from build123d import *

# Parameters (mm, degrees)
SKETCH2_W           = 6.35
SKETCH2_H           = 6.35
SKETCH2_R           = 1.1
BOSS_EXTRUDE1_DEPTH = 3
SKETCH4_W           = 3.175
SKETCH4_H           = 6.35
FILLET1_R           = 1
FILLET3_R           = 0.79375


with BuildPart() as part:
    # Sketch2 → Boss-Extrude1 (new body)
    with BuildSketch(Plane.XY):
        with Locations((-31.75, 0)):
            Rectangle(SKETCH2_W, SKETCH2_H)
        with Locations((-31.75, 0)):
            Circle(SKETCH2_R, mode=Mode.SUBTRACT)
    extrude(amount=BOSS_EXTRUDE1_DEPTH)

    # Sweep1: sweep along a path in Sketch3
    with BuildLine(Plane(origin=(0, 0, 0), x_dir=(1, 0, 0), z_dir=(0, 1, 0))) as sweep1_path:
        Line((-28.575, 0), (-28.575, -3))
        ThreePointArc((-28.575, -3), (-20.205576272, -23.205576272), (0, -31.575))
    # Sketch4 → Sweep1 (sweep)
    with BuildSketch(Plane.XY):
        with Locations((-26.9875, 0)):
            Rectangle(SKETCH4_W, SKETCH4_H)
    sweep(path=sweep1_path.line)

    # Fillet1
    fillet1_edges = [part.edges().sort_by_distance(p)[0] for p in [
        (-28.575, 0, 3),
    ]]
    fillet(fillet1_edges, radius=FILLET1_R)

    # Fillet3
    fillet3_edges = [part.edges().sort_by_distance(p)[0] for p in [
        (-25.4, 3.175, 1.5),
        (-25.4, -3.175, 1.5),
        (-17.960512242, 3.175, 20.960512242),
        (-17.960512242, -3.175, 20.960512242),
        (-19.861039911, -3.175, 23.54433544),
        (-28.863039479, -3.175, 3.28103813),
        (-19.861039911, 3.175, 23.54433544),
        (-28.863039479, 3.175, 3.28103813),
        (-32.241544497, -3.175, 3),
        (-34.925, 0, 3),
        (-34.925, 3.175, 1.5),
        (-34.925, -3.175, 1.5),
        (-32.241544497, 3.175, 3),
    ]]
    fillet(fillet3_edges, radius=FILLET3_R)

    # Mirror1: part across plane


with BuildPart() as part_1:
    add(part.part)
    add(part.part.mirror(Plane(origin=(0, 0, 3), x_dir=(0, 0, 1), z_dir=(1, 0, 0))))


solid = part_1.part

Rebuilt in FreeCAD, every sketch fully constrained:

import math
import FreeCAD as App
import Part
import Sketcher

V = App.Vector
Q = App.Units.Quantity


def edges_at(feature, points):
    """Names of the edges that pass closest to the given points."""
    edges = feature.Shape.Edges
    near = lambda p: min(range(len(edges)), key=lambda i: edges[i].distToShape(Part.Vertex(*p))[0])
    return sorted({f"Edge{near(p) + 1}" for p in points})


def add_polygon(sketch, points):
    """Adds a closed chain of lines whose ends are joined by coincident constraints."""
    first, n = sketch.GeometryCount, len(points)
    for a, b in zip(points, points[1:] + points[:1]):
        sketch.addGeometry(Part.LineSegment(App.Vector(*a, 0), App.Vector(*b, 0)), False)
    for i in range(n):
        sketch.addConstraint(Sketcher.Constraint("Coincident", first + i, 2, first + (i + 1) % n, 1))

doc = App.newDocument("Part")
body = doc.addObject("PartDesign::Body", "Body")

# Sketch on XY plane
sketch1 = doc.addObject("Sketcher::SketchObject", "Sketch")
body.addObject(sketch1)
sketch1.AttachmentSupport = (doc.XY_Plane, [""])
sketch1.MapMode = "FlatFace"
add_polygon(sketch1, [(-34.925, 3.175), (-34.925, -3.175), (-28.575, -3.175), (-28.575, 3.175)])  # lines 0-3
sketch1.addGeometry(Part.Circle(V(-31.75, 0, 0), V(0, 0, 1), 1.1), False)  # 4
sketch1.addConstraint([
    Sketcher.Constraint("Vertical", 0),
    Sketcher.Constraint("Horizontal", 1),
    Sketcher.Constraint("Vertical", 2),
    Sketcher.Constraint("Horizontal", 3),
    Sketcher.Constraint("PointOnObject", 4, 3, -1),
    Sketcher.Constraint("Equal", 3, 0),
    Sketcher.Constraint("DistanceX", 1, 1, 1, 2, Q("0.25 in")),
    Sketcher.Constraint("Diameter", 4, Q("2.2 mm")),
    Sketcher.Constraint("DistanceX", 4, 3, -1, 1, Q("1.25 in")),
    Sketcher.Constraint("DistanceX", 0, 2, -1, 1, Q("1.375 in")),
    Sketcher.Constraint("DistanceY", 0, 2, -1, 1, Q("0.125 in")),
])
pad1 = doc.addObject("PartDesign::Pad", "Pad")
body.addObject(pad1)
pad1.Profile = sketch1
pad1.Length = 3

# Sketch on XY plane
sketch2 = doc.addObject("Sketcher::SketchObject", "Sketch001")
body.addObject(sketch2)
sketch2.AttachmentSupport = (doc.XY_Plane, [""])
sketch2.MapMode = "FlatFace"
add_polygon(sketch2, [(-28.575, 3.175), (-28.575, -3.175), (-25.4, -3.175), (-25.4, 3.175)])  # lines 0-3
sketch2.addConstraint([
    Sketcher.Constraint("Vertical", 0),
    Sketcher.Constraint("Horizontal", 1),
    Sketcher.Constraint("Vertical", 2),
    Sketcher.Constraint("Horizontal", 3),
    Sketcher.Constraint("DistanceX", 1, 2, -1, 1, Q("1 in")),
    Sketcher.Constraint("DistanceY", 0, 2, 0, 1, Q("0.25 in")),
    Sketcher.Constraint("DistanceX", 1, 1, 1, 2, Q("0.125 in")),
    Sketcher.Constraint("DistanceY", 0, 2, -1, 1, Q("0.125 in")),
])

# Sketch on XZ plane
sketch3 = doc.addObject("Sketcher::SketchObject", "Sketch002")
body.addObject(sketch3)
sketch3.AttachmentSupport = (doc.XZ_Plane, [""])
sketch3.MapMode = "FlatFace"
sketch3.addGeometry([
    Part.LineSegment(V(-28.575, 0, 0), V(-28.575, 3, 0)),
    Part.ArcOfCircle(Part.Circle(V(0, 3, 0), V(0, 0, 1), 28.575), math.radians(90), math.radians(180)),
], False)
sketch3.addConstraint([
    Sketcher.Constraint("Tangent", 0, 2, 1, 2),
    Sketcher.Constraint("Vertical", 0),
    Sketcher.Constraint("PointOnObject", 1, 3, -2),
    Sketcher.Constraint("PointOnObject", 0, 1, -1),
    Sketcher.Constraint("PointOnObject", 1, 1, -2),
    Sketcher.Constraint("Radius", 1, Q("1.125 in")),
    Sketcher.Constraint("DistanceY", 0, 1, 0, 2, Q("3 mm")),
])
doc.recompute()

additivepipe = doc.addObject("PartDesign::AdditivePipe", "AdditivePipe")
body.addObject(additivepipe)
additivepipe.Profile = sketch2
additivepipe.Spine = (sketch3, ["Edge1", "Edge2"])
doc.recompute()

fillet = doc.addObject("PartDesign::Fillet", "Fillet")
body.addObject(fillet)
fillet.Base = (additivepipe, edges_at(additivepipe, [(-28.575, 0, 3)]))
fillet.Radius = 1
doc.recompute()

fillet2 = doc.addObject("PartDesign::Fillet", "Fillet001")
body.addObject(fillet2)
fillet2.Base = (fillet, edges_at(fillet, [
    (-25.4, 3.175, 1.5),
    (-25.4, -3.175, 1.5),
    (-17.961, 3.175, 20.961),
    (-17.961, -3.175, 20.961),
    (-19.861, -3.175, 23.544),
    (-28.863, -3.175, 3.281),
    (-19.861, 3.175, 23.544),
    (-28.863, 3.175, 3.281),
    (-32.242, -3.175, 3),
    (-34.925, 0, 3),
    (-34.925, 3.175, 1.5),
    (-34.925, -3.175, 1.5),
    (-32.242, 3.175, 3),
]))
fillet2.Radius = Q("0.03125 in")
body2 = doc.addObject("PartDesign::Body", "Body001")
doc.recompute()

body2.BaseFeature = body
doc.recompute()

mirroring = doc.addObject("Part::Mirroring", "Mirroring")
mirroring.Source = body
mirroring.Base = V(0, 0, 3)
mirroring.Normal = V(1, 0, 0)
body3 = doc.addObject("PartDesign::Body", "Body002")
body3.BaseFeature = mirroring
boolean = doc.addObject("PartDesign::Boolean", "Boolean")
body2.addObject(boolean)
boolean.Type = "Fuse"
boolean.addObjects([body3])
doc.recompute()
mirroring.Visibility = False

doc.recompute()
